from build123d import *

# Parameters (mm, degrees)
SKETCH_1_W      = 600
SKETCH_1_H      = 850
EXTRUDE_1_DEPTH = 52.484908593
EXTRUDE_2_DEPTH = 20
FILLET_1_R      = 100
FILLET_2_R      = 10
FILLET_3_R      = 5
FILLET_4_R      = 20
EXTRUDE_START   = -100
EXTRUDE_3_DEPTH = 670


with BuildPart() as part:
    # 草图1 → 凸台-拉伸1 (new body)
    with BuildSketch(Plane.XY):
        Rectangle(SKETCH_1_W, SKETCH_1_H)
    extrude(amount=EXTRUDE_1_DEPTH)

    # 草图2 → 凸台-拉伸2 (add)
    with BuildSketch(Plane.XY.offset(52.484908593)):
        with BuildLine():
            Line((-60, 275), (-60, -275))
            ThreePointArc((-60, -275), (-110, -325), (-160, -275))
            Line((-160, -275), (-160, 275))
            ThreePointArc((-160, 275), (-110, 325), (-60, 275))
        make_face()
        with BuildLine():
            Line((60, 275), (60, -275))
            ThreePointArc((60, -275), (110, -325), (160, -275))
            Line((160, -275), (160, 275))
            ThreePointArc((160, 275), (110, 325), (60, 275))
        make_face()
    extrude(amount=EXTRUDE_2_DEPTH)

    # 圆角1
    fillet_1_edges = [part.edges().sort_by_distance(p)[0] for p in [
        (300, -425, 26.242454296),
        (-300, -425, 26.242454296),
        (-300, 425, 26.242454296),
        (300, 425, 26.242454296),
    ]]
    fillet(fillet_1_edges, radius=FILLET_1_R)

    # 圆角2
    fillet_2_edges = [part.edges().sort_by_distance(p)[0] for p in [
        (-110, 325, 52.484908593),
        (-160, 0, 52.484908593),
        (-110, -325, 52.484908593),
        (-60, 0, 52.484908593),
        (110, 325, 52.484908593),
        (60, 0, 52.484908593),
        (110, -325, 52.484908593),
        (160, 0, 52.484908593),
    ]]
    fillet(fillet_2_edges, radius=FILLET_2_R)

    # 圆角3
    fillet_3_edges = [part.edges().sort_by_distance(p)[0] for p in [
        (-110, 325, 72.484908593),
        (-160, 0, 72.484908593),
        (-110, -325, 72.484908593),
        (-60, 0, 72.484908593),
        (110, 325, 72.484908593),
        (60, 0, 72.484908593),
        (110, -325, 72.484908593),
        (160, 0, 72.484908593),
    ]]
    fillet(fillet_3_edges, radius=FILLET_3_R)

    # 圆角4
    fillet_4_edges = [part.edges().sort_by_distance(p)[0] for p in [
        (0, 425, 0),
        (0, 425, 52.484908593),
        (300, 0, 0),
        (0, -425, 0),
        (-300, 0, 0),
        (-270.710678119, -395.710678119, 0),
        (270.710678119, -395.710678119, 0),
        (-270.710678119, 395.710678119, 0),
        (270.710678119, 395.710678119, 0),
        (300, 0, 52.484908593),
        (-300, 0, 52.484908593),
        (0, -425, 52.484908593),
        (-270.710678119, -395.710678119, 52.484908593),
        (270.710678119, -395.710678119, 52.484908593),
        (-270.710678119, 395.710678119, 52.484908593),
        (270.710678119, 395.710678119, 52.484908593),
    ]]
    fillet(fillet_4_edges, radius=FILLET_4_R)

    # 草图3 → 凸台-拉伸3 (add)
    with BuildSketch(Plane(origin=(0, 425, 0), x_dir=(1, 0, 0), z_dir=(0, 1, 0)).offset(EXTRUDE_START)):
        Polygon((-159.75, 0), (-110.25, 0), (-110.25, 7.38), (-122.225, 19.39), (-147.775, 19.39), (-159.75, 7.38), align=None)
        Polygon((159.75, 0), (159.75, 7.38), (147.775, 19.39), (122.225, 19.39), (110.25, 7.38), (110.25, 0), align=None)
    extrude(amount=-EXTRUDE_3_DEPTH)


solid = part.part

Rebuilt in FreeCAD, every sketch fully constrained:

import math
import FreeCAD as App
import Part
import Sketcher

V = App.Vector
Q = App.Units.Quantity


def edges_at(feature, points):
    """Names of the edges that pass closest to the given points."""
    edges = feature.Shape.Edges
    near = lambda p: min(range(len(edges)), key=lambda i: edges[i].distToShape(Part.Vertex(*p))[0])
    return sorted({f"Edge{near(p) + 1}" for p in points})

doc = App.newDocument("Part")
params = doc.addObject("Spreadsheet::Sheet", "Params")
for row, (alias, value) in enumerate([
    ("sketch1_width", "600 mm"),
    ("sketch1_height", "850 mm"),
    ("pad1_length", "52.484909 mm"),
    ("sketch2_radius", "50 mm"),
    ("sketch2_height", "550 mm"),
    ("pad2_length", "20 mm"),
    ("fillet_radius", "100 mm"),
    ("fillet2_radius", "10 mm"),
    ("fillet3_radius", "5 mm"),
    ("fillet4_radius", "20 mm"),
    ("sketch3_width", "49.5 mm"),
    ("sketch3_width2", "25.55 mm"),
    ("sketch3_height", "7.38 mm"),
    ("pad3_length", "670 mm"),
], start=1):
    params.set(f"A{row}", alias)
    params.set(f"B{row}", "=" + value)
    params.setAlias(f"B{row}", alias)

body = doc.addObject("PartDesign::Body", "Body")

sketch1 = body.newObject("Sketcher::SketchObject", "Sketch")
sketch1.AttachmentSupport = (doc.getObject("XY_Plane"), [""])
sketch1.MapMode = "FlatFace"
sketch1.addGeometry([
    Part.LineSegment(V(-300, 425, 0), V(-300, -425, 0)),
    Part.LineSegment(V(-300, -425, 0), V(300, -425, 0)),
    Part.LineSegment(V(300, -425, 0), V(300, 425, 0)),
    Part.LineSegment(V(300, 425, 0), V(-300, 425, 0)),
], False)
sketch1.addConstraint([
    Sketcher.Constraint("Coincident", 0, 2, 1, 1),
    Sketcher.Constraint("Coincident", 1, 2, 2, 1),
    Sketcher.Constraint("Coincident", 2, 2, 3, 1),
    Sketcher.Constraint("Coincident", 3, 2, 0, 1),
    Sketcher.Constraint("Vertical", 0),
    Sketcher.Constraint("Horizontal", 1),
    Sketcher.Constraint("Vertical", 2),
    Sketcher.Constraint("Horizontal", 3),
    Sketcher.Constraint("Symmetric", 0, 2, 2, 2, -1, 1),
    Sketcher.Constraint("DistanceX", 1, 1, 1, 2, Q("600 mm")),
    Sketcher.Constraint("DistanceY", 0, 2, 0, 1, Q("850 mm")),
])
sketch1.setExpression("Constraints[9]", "Params.sketch1_width")
sketch1.setExpression("Constraints[10]", "Params.sketch1_height")
pad1 = body.newObject("PartDesign::Pad", "Pad")
pad1.Profile = sketch1
pad1.setExpression("Length", "Params.pad1_length")

sketch2 = body.newObject("Sketcher::SketchObject", "Sketch001")
sketch2.AttachmentSupport = (doc.getObject("XY_Plane"), [""])
sketch2.MapMode = "FlatFace"
sketch2.AttachmentOffset = App.Placement(V(0, 0, 52.484909), App.Rotation())
sketch2.addGeometry([
    Part.LineSegment(V(-60, -275, 0), V(-60, 275, 0)),
    Part.ArcOfCircle(Part.Circle(V(-110, 275, 0), V(0, 0, 1), 50), math.radians(0), math.radians(180)),
    Part.LineSegment(V(-160, 275, 0), V(-160, -275, 0)),
    Part.ArcOfCircle(Part.Circle(V(-110, -275, 0), V(0, 0, 1), 50), math.radians(180), math.radians(360)),
    Part.LineSegment(V(60, 275, 0), V(60, -275, 0)),
    Part.ArcOfCircle(Part.Circle(V(110, -275, 0), V(0, 0, 1), 50), math.radians(180), math.radians(360)),
    Part.LineSegment(V(160, -275, 0), V(160, 275, 0)),
    Part.ArcOfCircle(Part.Circle(V(110, 275, 0), V(0, 0, 1), 50), math.radians(0), math.radians(180)),
], False)
sketch2.addConstraint([
    Sketcher.Constraint("Tangent", 0, 2, 1, 1),
    Sketcher.Constraint("Tangent", 1, 2, 2, 1),
    Sketcher.Constraint("Tangent", 2, 2, 3, 1),
    Sketcher.Constraint("Tangent", 3, 2, 0, 1),
    Sketcher.Constraint("Tangent", 4, 2, 5, 1),
    Sketcher.Constraint("Tangent", 5, 2, 6, 1),
    Sketcher.Constraint("Tangent", 6, 2, 7, 1),
    Sketcher.Constraint("Tangent", 7, 2, 4, 1),
    Sketcher.Constraint("Vertical", 0),
    Sketcher.Constraint("Vertical", 2),
    Sketcher.Constraint("Vertical", 4),
    Sketcher.Constraint("Vertical", 6),
    Sketcher.Constraint("Equal", 3, 5),
    Sketcher.Constraint("Symmetric", 1, 3, 5, 3, -1, 1),
    Sketcher.Constraint("Horizontal", 3, 3, 5, 3),
    Sketcher.Constraint("Horizontal", 1, 3, 7, 3),
    Sketcher.Constraint("Radius", 1, Q("50 mm")),
    Sketcher.Constraint("DistanceY", 0, 1, 0, 2, Q("550 mm")),
    Sketcher.Constraint("DistanceX", 1, 3, -1, 1, Q("110 mm")),
])
sketch2.setExpression("Constraints[16]", "Params.sketch2_radius")
sketch2.setExpression("Constraints[17]", "Params.sketch2_height")
pad2 = body.newObject("PartDesign::Pad", "Pad001")
pad2.Profile = sketch2
pad2.setExpression("Length", "Params.pad2_length")
doc.recompute()

fillet = body.newObject("PartDesign::Fillet", "Fillet")
fillet.Base = (pad2, edges_at(pad2, [
    (300, -425, 26.242),
    (-300, -425, 26.242),
    (-300, 425, 26.242),
    (300, 425, 26.242),
]))
fillet.setExpression("Radius", "Params.fillet_radius")
doc.recompute()

fillet2 = body.newObject("PartDesign::Fillet", "Fillet001")
fillet2.Base = (fillet, edges_at(fillet, [
    (-110, 325, 52.485),
    (-160, 0, 52.485),
    (-110, -325, 52.485),
    (-60, 0, 52.485),
    (110, 325, 52.485),
    (60, 0, 52.485),
    (110, -325, 52.485),
    (160, 0, 52.485),
]))
fillet2.setExpression("Radius", "Params.fillet2_radius")
doc.recompute()

fillet3 = body.newObject("PartDesign::Fillet", "Fillet002")
fillet3.Base = (fillet2, edges_at(fillet2, [
    (-110, 325, 72.485),
    (-160, 0, 72.485),
    (-110, -325, 72.485),
    (-60, 0, 72.485),
    (110, 325, 72.485),
    (60, 0, 72.485),
    (110, -325, 72.485),
    (160, 0, 72.485),
]))
fillet3.setExpression("Radius", "Params.fillet3_radius")
doc.recompute()

fillet4 = body.newObject("PartDesign::Fillet", "Fillet003")
fillet4.Base = (fillet3, edges_at(fillet3, [
    (0, 425, 0),
    (0, 425, 52.485),
    (300, 0, 0),
    (0, -425, 0),
    (-300, 0, 0),
    (-270.711, -395.711, 0),
    (270.711, -395.711, 0),
    (-270.711, 395.711, 0),
    (270.711, 395.711, 0),
    (300, 0, 52.485),
    (-300, 0, 52.485),
    (0, -425, 52.485),
    (-270.711, -395.711, 52.485),
    (270.711, -395.711, 52.485),
    (-270.711, 395.711, 52.485),
    (270.711, 395.711, 52.485),
]))
fillet4.setExpression("Radius", "Params.fillet4_radius")

sketch3 = body.newObject("Sketcher::SketchObject", "Sketch002")
sketch3.AttachmentSupport = (doc.getObject("XZ_Plane"), [""])
sketch3.MapMode = "FlatFace"
sketch3.AttachmentOffset = App.Placement(V(0, 0, -325), App.Rotation())
sketch3.addGeometry([
    Part.LineSegment(V(-160, 0, 0), V(-110, 0, 0)),
    Part.LineSegment(V(-110, 0, 0), V(-110, -7, 0)),
    Part.LineSegment(V(-110, -7, 0), V(-122, -19, 0)),
    Part.LineSegment(V(-122, -19, 0), V(-148, -19, 0)),
    Part.LineSegment(V(-148, -19, 0), V(-160, -7, 0)),
    Part.LineSegment(V(-160, -7, 0), V(-160, 0, 0)),
    Part.LineSegment(V(160, 0, 0), V(160, -7, 0)),
    Part.LineSegment(V(160, -7, 0), V(148, -19, 0)),
    Part.LineSegment(V(148, -19, 0), V(122, -19, 0)),
    Part.LineSegment(V(122, -19, 0), V(110, -7, 0)),
    Part.LineSegment(V(110, -7, 0), V(110, 0, 0)),
    Part.LineSegment(V(110, 0, 0), V(160, 0, 0)),
], False)
sketch3.addConstraint([
    Sketcher.Constraint("Coincident", 0, 2, 1, 1),
    Sketcher.Constraint("Coincident", 1, 2, 2, 1),
    Sketcher.Constraint("Coincident", 2, 2, 3, 1),
    Sketcher.Constraint("Coincident", 3, 2, 4, 1),
    Sketcher.Constraint("Coincident", 4, 2, 5, 1),
    Sketcher.Constraint("Coincident", 5, 2, 0, 1),
    Sketcher.Constraint("Coincident", 6, 2, 7, 1),
    Sketcher.Constraint("Coincident", 7, 2, 8, 1),
    Sketcher.Constraint("Coincident", 8, 2, 9, 1),
    Sketcher.Constraint("Coincident", 9, 2, 10, 1),
    Sketcher.Constraint("Coincident", 10, 2, 11, 1),
    Sketcher.Constraint("Coincident", 11, 2, 6, 1),
    Sketcher.Constraint("Horizontal", 0),
    Sketcher.Constraint("Vertical", 1),
    Sketcher.Constraint("Horizontal", 3),
    Sketcher.Constraint("Vertical", 5),
    Sketcher.Constraint("Vertical", 6),
    Sketcher.Constraint("Horizontal", 8),
    Sketcher.Constraint("Vertical", 10),
    Sketcher.Constraint("Horizontal", 11),
    Sketcher.Constraint("Symmetric", 0, 2, 10, 2, -1, 1),
    Sketcher.Constraint("Symmetric", 4, 2, 6, 2, -2),
    Sketcher.Constraint("Symmetric", 3, 2, 7, 2, -2),
    Sketcher.Constraint("PointOnObject", 0, 2, -1),
    Sketcher.Constraint("Parallel", 2, 7),
    Sketcher.Constraint("Parallel", 4, 9),
    Sketcher.Constraint("Horizontal", 1, 2, 4, 2),
    Sketcher.Constraint("Horizontal", 6, 2, 9, 2),
    Sketcher.Constraint("DistanceX", 0, 1, 0, 2, Q("49.5 mm")),
    Sketcher.Constraint("DistanceX", 1, 2, 6, 2, Q("270 mm")),
    Sketcher.Constraint("DistanceX", 3, 2, 3, 1, Q("25.55 mm")),
    Sketcher.Constraint("DistanceY", 1, 2, 1, 1, Q("7.38 mm")),
    Sketcher.Constraint("DistanceY", 2, 2, -1, 1, Q("19.39 mm")),
])
sketch3.setExpression("Constraints[28]", "Params.sketch3_width")
sketch3.setExpression("Constraints[30]", "Params.sketch3_width2")
sketch3.setExpression("Constraints[31]", "Params.sketch3_height")
pad3 = body.newObject("PartDesign::Pad", "Pad002")
pad3.Profile = sketch3
pad3.setExpression("Length", "Params.pad3_length")

doc.recompute()
